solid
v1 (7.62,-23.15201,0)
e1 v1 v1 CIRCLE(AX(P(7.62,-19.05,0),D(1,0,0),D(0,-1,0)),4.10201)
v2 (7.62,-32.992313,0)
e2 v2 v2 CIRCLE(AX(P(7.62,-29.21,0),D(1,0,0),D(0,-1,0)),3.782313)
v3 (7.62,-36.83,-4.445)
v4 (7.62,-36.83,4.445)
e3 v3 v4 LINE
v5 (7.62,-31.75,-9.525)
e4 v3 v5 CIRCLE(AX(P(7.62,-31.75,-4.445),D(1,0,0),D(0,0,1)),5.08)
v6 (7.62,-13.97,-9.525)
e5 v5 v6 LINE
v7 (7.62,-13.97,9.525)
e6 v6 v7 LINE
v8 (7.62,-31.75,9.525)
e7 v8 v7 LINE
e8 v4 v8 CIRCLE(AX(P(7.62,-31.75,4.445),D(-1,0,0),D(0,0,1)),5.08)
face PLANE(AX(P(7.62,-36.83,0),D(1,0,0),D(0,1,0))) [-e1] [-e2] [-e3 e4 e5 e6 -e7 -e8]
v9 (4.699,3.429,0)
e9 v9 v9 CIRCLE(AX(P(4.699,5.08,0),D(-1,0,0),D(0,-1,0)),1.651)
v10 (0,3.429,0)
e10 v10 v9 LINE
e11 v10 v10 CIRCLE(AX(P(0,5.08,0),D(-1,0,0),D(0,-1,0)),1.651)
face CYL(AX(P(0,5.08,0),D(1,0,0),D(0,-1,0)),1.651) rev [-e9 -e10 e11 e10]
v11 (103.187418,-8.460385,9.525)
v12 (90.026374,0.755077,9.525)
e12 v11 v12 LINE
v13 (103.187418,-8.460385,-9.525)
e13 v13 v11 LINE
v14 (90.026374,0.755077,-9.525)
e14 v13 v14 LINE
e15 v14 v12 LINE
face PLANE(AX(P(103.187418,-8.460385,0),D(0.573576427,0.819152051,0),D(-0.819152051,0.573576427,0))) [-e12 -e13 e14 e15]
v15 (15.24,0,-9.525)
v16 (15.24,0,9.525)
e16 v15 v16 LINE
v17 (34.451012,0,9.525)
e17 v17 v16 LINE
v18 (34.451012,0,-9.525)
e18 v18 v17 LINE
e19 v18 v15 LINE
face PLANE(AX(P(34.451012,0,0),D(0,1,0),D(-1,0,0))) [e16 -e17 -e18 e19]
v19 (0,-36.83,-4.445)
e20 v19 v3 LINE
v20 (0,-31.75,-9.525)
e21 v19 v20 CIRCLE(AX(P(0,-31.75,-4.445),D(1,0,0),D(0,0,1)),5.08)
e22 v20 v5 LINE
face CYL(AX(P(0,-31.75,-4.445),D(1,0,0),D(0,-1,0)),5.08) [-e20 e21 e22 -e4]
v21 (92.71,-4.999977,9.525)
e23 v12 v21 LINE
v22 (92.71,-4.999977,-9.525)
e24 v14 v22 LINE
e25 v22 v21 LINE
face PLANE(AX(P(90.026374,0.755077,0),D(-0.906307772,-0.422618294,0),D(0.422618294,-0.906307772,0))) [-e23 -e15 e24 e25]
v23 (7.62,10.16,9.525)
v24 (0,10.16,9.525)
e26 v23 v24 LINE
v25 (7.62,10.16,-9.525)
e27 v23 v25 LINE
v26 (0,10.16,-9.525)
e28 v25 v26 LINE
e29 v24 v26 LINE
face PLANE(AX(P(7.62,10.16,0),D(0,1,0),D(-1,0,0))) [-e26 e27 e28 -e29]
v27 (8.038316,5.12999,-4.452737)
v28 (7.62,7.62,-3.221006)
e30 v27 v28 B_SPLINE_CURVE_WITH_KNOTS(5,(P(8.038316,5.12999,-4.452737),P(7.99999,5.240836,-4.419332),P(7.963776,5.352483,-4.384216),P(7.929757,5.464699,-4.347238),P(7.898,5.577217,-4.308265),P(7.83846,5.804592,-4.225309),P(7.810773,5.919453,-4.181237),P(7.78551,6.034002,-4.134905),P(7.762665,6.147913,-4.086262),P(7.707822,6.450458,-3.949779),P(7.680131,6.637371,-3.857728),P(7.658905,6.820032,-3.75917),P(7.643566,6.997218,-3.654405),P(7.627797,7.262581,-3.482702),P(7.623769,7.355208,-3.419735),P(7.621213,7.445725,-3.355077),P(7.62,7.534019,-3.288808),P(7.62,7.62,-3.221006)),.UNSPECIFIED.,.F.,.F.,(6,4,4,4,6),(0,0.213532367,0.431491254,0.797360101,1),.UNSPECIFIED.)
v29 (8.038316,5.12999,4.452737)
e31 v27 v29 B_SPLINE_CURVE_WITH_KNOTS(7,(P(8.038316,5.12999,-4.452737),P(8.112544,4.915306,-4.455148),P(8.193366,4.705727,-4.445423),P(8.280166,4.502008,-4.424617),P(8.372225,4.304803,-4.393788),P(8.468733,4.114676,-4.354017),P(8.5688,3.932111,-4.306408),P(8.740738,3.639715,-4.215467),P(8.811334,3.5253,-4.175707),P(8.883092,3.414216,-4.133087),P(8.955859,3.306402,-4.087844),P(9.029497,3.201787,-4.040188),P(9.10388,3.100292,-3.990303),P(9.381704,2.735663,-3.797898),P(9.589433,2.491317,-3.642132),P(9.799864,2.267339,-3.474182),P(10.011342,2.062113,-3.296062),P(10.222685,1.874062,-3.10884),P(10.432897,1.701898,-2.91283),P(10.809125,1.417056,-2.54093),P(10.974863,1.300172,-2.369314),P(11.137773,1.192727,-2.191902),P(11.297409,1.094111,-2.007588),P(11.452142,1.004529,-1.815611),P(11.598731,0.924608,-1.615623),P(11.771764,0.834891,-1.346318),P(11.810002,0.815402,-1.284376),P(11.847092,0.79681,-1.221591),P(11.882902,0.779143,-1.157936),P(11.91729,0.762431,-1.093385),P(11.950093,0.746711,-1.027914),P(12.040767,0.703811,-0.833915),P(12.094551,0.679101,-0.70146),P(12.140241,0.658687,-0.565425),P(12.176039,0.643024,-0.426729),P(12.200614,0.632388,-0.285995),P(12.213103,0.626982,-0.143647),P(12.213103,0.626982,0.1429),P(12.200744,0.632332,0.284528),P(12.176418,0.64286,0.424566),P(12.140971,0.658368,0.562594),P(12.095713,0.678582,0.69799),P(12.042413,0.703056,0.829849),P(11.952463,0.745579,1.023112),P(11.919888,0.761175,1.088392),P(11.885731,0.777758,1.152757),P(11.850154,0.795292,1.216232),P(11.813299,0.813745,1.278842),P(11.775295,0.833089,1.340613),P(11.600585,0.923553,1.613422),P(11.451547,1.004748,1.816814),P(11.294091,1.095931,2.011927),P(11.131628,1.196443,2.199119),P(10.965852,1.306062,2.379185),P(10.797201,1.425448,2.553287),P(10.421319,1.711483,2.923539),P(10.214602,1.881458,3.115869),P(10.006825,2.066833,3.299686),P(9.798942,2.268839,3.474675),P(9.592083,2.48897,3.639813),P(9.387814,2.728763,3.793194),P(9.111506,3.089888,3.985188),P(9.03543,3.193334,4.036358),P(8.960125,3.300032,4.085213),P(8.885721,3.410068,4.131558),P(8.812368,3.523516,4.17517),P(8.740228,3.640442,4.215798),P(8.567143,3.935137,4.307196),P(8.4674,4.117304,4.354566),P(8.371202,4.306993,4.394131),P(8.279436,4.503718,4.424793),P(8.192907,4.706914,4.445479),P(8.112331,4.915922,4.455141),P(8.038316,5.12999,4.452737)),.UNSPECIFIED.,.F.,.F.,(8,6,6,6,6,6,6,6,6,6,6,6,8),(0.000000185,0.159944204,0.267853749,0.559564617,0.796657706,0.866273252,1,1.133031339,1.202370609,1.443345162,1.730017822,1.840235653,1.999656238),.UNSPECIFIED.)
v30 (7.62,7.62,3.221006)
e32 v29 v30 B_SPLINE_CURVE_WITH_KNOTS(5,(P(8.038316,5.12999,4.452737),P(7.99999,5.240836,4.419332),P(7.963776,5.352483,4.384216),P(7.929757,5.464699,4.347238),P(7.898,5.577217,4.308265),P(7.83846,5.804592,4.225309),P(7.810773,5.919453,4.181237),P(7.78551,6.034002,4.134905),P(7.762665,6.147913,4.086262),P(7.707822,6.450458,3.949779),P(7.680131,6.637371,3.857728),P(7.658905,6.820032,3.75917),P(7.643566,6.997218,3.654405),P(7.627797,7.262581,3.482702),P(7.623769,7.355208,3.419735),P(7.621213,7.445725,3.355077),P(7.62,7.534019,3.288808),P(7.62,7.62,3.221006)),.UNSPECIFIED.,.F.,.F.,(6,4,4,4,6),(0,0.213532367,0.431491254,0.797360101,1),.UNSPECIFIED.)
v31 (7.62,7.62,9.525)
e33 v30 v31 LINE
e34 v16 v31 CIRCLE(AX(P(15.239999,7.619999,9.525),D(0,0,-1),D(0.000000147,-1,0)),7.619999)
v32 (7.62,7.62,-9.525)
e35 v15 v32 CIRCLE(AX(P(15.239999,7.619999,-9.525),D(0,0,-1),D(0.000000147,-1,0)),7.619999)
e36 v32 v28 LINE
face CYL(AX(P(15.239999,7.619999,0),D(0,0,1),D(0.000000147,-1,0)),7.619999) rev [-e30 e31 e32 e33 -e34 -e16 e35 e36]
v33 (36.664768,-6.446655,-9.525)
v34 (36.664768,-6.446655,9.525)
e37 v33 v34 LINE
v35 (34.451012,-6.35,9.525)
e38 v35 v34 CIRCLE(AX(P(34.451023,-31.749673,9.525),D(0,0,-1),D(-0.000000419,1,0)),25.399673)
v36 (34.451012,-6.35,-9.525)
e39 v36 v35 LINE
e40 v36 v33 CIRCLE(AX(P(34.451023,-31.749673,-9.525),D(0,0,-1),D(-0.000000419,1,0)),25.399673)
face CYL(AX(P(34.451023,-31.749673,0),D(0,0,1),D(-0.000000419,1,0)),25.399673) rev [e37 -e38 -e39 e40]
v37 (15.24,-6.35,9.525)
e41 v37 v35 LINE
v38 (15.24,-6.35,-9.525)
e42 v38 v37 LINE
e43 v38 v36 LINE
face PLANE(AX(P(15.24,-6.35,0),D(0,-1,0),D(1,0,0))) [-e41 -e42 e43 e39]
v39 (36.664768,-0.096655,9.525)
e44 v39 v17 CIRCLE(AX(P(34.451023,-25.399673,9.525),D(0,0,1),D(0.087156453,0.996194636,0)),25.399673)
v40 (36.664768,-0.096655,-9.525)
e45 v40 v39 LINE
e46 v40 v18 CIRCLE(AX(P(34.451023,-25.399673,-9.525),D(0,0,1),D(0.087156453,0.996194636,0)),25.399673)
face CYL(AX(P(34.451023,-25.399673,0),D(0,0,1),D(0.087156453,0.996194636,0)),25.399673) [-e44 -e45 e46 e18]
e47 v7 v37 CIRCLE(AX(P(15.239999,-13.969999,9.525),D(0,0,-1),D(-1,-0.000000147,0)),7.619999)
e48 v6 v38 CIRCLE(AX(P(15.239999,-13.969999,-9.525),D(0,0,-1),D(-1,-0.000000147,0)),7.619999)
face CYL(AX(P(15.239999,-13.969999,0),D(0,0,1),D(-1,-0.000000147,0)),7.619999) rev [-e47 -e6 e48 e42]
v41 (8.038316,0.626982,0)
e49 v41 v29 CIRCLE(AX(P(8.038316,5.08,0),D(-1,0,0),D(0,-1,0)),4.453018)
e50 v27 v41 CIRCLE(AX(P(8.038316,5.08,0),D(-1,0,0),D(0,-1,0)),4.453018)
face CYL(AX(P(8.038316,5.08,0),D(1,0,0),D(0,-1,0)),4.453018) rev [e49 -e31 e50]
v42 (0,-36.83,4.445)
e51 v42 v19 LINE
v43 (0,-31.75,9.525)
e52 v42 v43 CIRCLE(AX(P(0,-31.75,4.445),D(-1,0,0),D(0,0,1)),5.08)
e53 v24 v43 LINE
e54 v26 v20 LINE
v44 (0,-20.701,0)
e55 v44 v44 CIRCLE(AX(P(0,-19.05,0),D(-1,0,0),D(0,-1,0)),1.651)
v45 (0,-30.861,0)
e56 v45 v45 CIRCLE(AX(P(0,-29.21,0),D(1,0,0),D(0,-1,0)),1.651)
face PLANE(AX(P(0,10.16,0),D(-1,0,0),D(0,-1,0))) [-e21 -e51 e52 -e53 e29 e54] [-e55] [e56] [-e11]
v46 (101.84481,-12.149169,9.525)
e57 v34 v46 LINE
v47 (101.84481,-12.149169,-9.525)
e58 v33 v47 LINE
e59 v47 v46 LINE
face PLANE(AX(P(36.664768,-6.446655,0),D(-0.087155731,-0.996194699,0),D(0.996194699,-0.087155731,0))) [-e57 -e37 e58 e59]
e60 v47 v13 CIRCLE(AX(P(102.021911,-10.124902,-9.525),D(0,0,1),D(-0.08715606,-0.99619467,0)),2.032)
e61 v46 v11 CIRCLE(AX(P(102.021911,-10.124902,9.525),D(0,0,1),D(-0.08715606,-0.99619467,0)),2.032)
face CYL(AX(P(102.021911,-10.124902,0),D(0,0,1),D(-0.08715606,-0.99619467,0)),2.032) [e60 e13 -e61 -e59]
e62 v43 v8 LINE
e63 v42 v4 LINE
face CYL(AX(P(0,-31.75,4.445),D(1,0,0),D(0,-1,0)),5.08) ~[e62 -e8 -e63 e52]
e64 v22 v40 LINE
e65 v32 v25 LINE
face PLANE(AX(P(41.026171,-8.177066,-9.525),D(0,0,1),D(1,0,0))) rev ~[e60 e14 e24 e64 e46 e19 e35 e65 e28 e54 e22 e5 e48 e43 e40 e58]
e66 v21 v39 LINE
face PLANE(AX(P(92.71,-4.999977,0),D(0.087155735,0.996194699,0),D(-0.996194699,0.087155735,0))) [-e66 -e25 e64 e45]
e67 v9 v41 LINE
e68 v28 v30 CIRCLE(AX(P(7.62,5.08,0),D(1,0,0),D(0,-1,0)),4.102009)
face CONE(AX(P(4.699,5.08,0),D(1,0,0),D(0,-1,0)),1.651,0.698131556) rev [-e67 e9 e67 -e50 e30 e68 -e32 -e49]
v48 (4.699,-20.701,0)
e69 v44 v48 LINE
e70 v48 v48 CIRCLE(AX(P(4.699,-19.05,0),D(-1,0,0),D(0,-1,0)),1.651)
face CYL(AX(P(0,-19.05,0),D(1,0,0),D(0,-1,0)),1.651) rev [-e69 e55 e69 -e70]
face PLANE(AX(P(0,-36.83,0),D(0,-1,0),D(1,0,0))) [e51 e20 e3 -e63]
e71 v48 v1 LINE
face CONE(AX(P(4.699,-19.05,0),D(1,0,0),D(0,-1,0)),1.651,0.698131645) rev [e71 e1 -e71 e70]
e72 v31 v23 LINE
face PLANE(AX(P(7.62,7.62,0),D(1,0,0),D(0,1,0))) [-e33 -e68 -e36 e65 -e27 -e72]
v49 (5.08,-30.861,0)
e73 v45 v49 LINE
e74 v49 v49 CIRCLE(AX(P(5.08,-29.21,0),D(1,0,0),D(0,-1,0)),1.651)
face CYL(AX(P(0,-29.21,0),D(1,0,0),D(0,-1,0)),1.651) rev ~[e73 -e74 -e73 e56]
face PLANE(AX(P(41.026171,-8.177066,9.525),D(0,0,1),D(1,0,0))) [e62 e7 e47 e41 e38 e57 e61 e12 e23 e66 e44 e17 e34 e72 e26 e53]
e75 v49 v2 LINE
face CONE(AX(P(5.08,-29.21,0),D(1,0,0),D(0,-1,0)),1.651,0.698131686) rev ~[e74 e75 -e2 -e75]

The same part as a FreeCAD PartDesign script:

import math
import FreeCAD as App
import Part
import Sketcher

V = App.Vector
Q = App.Units.Quantity


def edges_at(feature, points):
    """Names of the edges that pass closest to the given points."""
    edges = feature.Shape.Edges
    near = lambda p: min(range(len(edges)), key=lambda i: edges[i].distToShape(Part.Vertex(*p))[0])
    return sorted({f"Edge{near(p) + 1}" for p in points})

doc = App.newDocument("Part")
body = doc.addObject("PartDesign::Body", "Body")

sketch1 = body.newObject("Sketcher::SketchObject", "Sketch")
sketch1.AttachmentSupport = (doc.getObject("XY_Plane"), [""])
sketch1.MapMode = "FlatFace"
sketch1.addGeometry([
    Part.LineSegment(V(0, -36.83, 0), V(7.62, -36.83, 0)),
    Part.LineSegment(V(7.62, -36.83, 0), V(7.62, -13.97, 0)),
    Part.ArcOfCircle(Part.Circle(V(15.239999, -13.969999, 0), V(0, 0, 1), 7.619999), math.radians(89.999992), math.radians(180.000008)),
    Part.LineSegment(V(15.24, -6.35, 0), V(34.451012, -6.35, 0)),
    Part.ArcOfCircle(Part.Circle(V(34.451023, -31.749673, 0), V(0, 0, 1), 25.399673), math.radians(84.999959), math.radians(90.000024)),
    Part.LineSegment(V(36.664768, -6.446655, 0), V(101.84481, -12.149169, 0)),
    Part.ArcOfCircle(Part.Circle(V(102.021911, -10.124902, 0), V(0, 0, 1), 2.032), math.radians(-95.000018), math.radians(55.000007)),
    Part.LineSegment(V(103.187418, -8.460385, 0), V(90.026374, 0.755077, 0)),
    Part.LineSegment(V(90.026374, 0.755077, 0), V(92.71, -4.999977, 0)),
    Part.LineSegment(V(92.71, -4.999977, 0), V(36.664768, -0.096655, 0)),
    Part.ArcOfCircle(Part.Circle(V(34.451023, -25.399673, 0), V(0, 0, 1), 25.399673), math.radians(84.999959), math.radians(90.000024)),
    Part.LineSegment(V(34.451012, 0, 0), V(15.24, 0, 0)),
    Part.ArcOfCircle(Part.Circle(V(15.239999, 7.619999, 0), V(0, 0, 1), 7.619999), math.radians(179.999992), math.radians(270.000008)),
    Part.LineSegment(V(7.62, 7.62, 0), V(7.62, 10.16, 0)),
    Part.LineSegment(V(7.62, 10.16, 0), V(0, 10.16, 0)),
    Part.LineSegment(V(0, 10.16, 0), V(0, -36.83, 0)),
], False)
sketch1.addConstraint([
    Sketcher.Constraint("Coincident", 0, 2, 1, 1),
    Sketcher.Constraint("Coincident", 1, 2, 2, 2),
    Sketcher.Constraint("Coincident", 2, 1, 3, 1),
    Sketcher.Constraint("Coincident", 3, 2, 4, 2),
    Sketcher.Constraint("Coincident", 4, 1, 5, 1),
    Sketcher.Constraint("Coincident", 5, 2, 6, 1),
    Sketcher.Constraint("Coincident", 6, 2, 7, 1),
    Sketcher.Constraint("Coincident", 7, 2, 8, 1),
    Sketcher.Constraint("Coincident", 8, 2, 9, 1),
    Sketcher.Constraint("Coincident", 9, 2, 10, 1),
    Sketcher.Constraint("Coincident", 10, 2, 11, 1),
    Sketcher.Constraint("Coincident", 11, 2, 12, 2),
    Sketcher.Constraint("Coincident", 12, 1, 13, 1),
    Sketcher.Constraint("Coincident", 13, 2, 14, 1),
    Sketcher.Constraint("Coincident", 14, 2, 15, 1),
    Sketcher.Constraint("Coincident", 15, 2, 0, 1),
    Sketcher.Constraint("Horizontal", 0),
    Sketcher.Constraint("Vertical", 1),
    Sketcher.Constraint("Horizontal", 3),
    Sketcher.Constraint("Horizontal", 11),
    Sketcher.Constraint("Vertical", 13),
    Sketcher.Constraint("Horizontal", 14),
    Sketcher.Constraint("Vertical", 15),
    Sketcher.Constraint("PointOnObject", 10, 2, -1),
    Sketcher.Constraint("PointOnObject", 14, 2, -2),
    Sketcher.Constraint("Radius", 2, Q("0.3 in")),
    Sketcher.Constraint("Radius", 12, Q("0.3 in")),
    Sketcher.Constraint("Radius", 6, Q("0.08 in")),
    Sketcher.Constraint("DistanceX", 0, 1, 0, 2, Q("0.3 in")),
    Sketcher.Constraint("DistanceX", 14, 2, 14, 1, Q("0.3 in")),
    Sketcher.Constraint("DistanceY", 1, 1, 1, 2, Q("0.9 in")),
    Sketcher.Constraint("DistanceY", 13, 1, 13, 2, Q("0.1 in")),
    Sketcher.Constraint("DistanceY", 15, 2, 15, 1, Q("1.85 in")),
    Sketcher.Constraint("DistanceX", -1, 1, 2, 1, Q("0.6 in")),
    Sketcher.Constraint("DistanceX", -1, 1, 11, 2, Q("0.6 in")),
    Sketcher.Constraint("DistanceY", -1, 1, 12, 1, Q("0.3 in")),
    Sketcher.Constraint("DistanceY", 0, 2, 2, 3, Q("0.9 in")),
    Sketcher.Constraint("Distance", 8, Q("0.25 in")),
    Sketcher.Constraint("DistanceX", -1, 1, 8, 2, Q("3.65 in")),
    Sketcher.Constraint("DistanceY", 4, 3, 10, 3, Q("0.25 in")),
    Sketcher.Constraint("DistanceY", 4, 1, 9, 2, Q("0.25 in")),
    Sketcher.Constraint("Radius", 4, 25.399673),
    Sketcher.Constraint("DistanceX", 3, 1, 3, 2, 19.211012),
    Sketcher.Constraint("DistanceX", 11, 2, 11, 1, 19.211012),
    Sketcher.Constraint("DistanceY", 6, 3, -1, 1, 10.124902),
    Sketcher.Constraint("DistanceX", 5, 2, 6, 3, 0.177101),
    Sketcher.Constraint("DistanceX", 3, 2, 5, 2, 67.393798),
    Sketcher.Constraint("Distance", 5, 65.429019),
    Sketcher.Constraint("DistanceX", -1, 1, 6, 2, 103.187418),
    Sketcher.Constraint("DistanceX", -1, 1, 9, 2, 36.664768),
    Sketcher.Constraint("DistanceX", 4, 3, 6, 3, 67.570888),
    Sketcher.Constraint("DistanceY", 6, 2, 7, 2, 9.215462),
    Sketcher.Constraint("Distance", 7, 16.066668),
])
pad1 = body.newObject("PartDesign::Pad", "Pad")
pad1.Profile = sketch1
pad1.Length = Q("0.75 in")
pad1.Midplane = True

sketch2 = body.newObject("Sketcher::SketchObject", "Sketch001")
sketch2.AttachmentSupport = (doc.getObject("XY_Plane"), [""])
sketch2.MapMode = "FlatFace"
sketch2.addGeometry([
    Part.LineSegment(V(0, -19.1, 0), V(0, -20.7, 0)),
    Part.LineSegment(V(0, -20.7, 0), V(4.7, -20.7, 0)),
    Part.LineSegment(V(4.7, -20.7, 0), V(9.7, -24.9, 0)),
    Part.LineSegment(V(9.7, -24.9, 0), V(11.6, -24.9, 0)),
    Part.LineSegment(V(11.6, -24.9, 0), V(11.6, -19.1, 0)),
    Part.LineSegment(V(11.6, -19.1, 0), V(0, -19.1, 0)),
], False)
sketch2.addGeometry(Part.LineSegment(V(11.6, -19.1, 0), V(0, -19.1, 0)), True)
sketch2.addConstraint([
    Sketcher.Constraint("Coincident", 0, 2, 1, 1),
    Sketcher.Constraint("Coincident", 1, 2, 2, 1),
    Sketcher.Constraint("Coincident", 2, 2, 3, 1),
    Sketcher.Constraint("Coincident", 3, 2, 4, 1),
    Sketcher.Constraint("Coincident", 4, 2, 5, 1),
    Sketcher.Constraint("Coincident", 5, 2, 0, 1),
    Sketcher.Constraint("Vertical", 0),
    Sketcher.Constraint("Horizontal", 1),
    Sketcher.Constraint("Horizontal", 3),
    Sketcher.Constraint("Vertical", 4),
    Sketcher.Constraint("Horizontal", 5),
    Sketcher.Constraint("Horizontal", 6),
    Sketcher.Constraint("Coincident", 6, 1, 4, 2),
    Sketcher.Constraint("PointOnObject", 0, 2, -2),
    Sketcher.Constraint("PointOnObject", 6, 2, -2),
    Sketcher.Constraint("Angle", 2, Q("-39.999997 deg")),
    Sketcher.Constraint("DistanceX", 1, 1, 1, 2, Q("0.185 in")),
    Sketcher.Constraint("DistanceY", 0, 2, 0, 1, Q("0.065 in")),
    Sketcher.Constraint("DistanceX", -1, 1, 2, 2, Q("0.38 in")),
    Sketcher.Constraint("DistanceY", 4, 2, -1, 1, Q("0.75 in")),
    Sketcher.Constraint("DistanceX", 3, 1, 3, 2, 1.903037),
])
groove = body.newObject("PartDesign::Groove", "Groove")
groove.Profile = sketch2
groove.ReferenceAxis = (sketch2, ["Axis0"])
groove.Angle = 360

sketch3 = body.newObject("Sketcher::SketchObject", "Sketch002")
sketch3.AttachmentSupport = (doc.getObject("XY_Plane"), [""])
sketch3.MapMode = "FlatFace"
sketch3.addGeometry([
    Part.LineSegment(V(7.6, -29.2, 0), V(0, -29.2, 0)),
    Part.LineSegment(V(0, -29.2, 0), V(0, -30.9, 0)),
    Part.LineSegment(V(0, -30.9, 0), V(5.1, -30.9, 0)),
    Part.LineSegment(V(5.1, -30.9, 0), V(7.6, -33, 0)),
    Part.LineSegment(V(7.6, -33, 0), V(7.6, -29.2, 0)),
], False)
sketch3.addGeometry(Part.LineSegment(V(0, -29.2, 0), V(7.6, -29.2, 0)), True)
sketch3.addConstraint([
    Sketcher.Constraint("Coincident", 0, 2, 1, 1),
    Sketcher.Constraint("Coincident", 1, 2, 2, 1),
    Sketcher.Constraint("Coincident", 2, 2, 3, 1),
    Sketcher.Constraint("Coincident", 3, 2, 4, 1),
    Sketcher.Constraint("Coincident", 4, 2, 0, 1),
    Sketcher.Constraint("Horizontal", 0),
    Sketcher.Constraint("Vertical", 1),
    Sketcher.Constraint("Horizontal", 2),
    Sketcher.Constraint("Vertical", 4),
    Sketcher.Constraint("Horizontal", 5),
    Sketcher.Constraint("Coincident", 5, 1, 0, 2),
    Sketcher.Constraint("PointOnObject", 0, 2, -2),
    Sketcher.Constraint("Vertical", 3, 2, 5, 2),
    Sketcher.Constraint("DistanceX", 0, 2, 0, 1, Q("0.3 in")),
    Sketcher.Constraint("DistanceX", 2, 1, 2, 2, Q("0.2 in")),
    Sketcher.Constraint("Angle", 3, Q("-39.999999 deg")),
    Sketcher.Constraint("DistanceY", 1, 2, 1, 1, Q("0.065 in")),
    Sketcher.Constraint("DistanceY", 0, 2, -1, 1, Q("1.15 in")),
])
groove2 = body.newObject("PartDesign::Groove", "Groove001")
groove2.Profile = sketch3
groove2.ReferenceAxis = (sketch3, ["Axis0"])
groove2.Angle = 360
doc.recompute()

fillet = body.newObject("PartDesign::Fillet", "Fillet")
fillet.Base = (groove2, edges_at(groove2, [(3.81, -36.83, 9.525), (3.81, -36.83, -9.525)]))
fillet.Radius = Q("0.2 in")

sketch4 = body.newObject("Sketcher::SketchObject", "Sketch003")
sketch4.AttachmentSupport = (doc.getObject("XY_Plane"), [""])
sketch4.MapMode = "FlatFace"
sketch4.addGeometry([
    Part.LineSegment(V(0, 5.1, 0), V(0, 3.4, 0)),
    Part.LineSegment(V(0, 3.4, 0), V(4.7, 3.4, 0)),
    Part.LineSegment(V(4.7, 3.4, 0), V(8, 0.6, 0)),
    Part.LineSegment(V(8, 0.6, 0), V(15.2, 0.6, 0)),
    Part.LineSegment(V(15.2, 0.6, 0), V(15.2, 5.1, 0)),
    Part.LineSegment(V(15.2, 5.1, 0), V(0, 5.1, 0)),
], False)
sketch4.addGeometry(Part.LineSegment(V(15.2, 5.1, 0), V(0, 5.1, 0)), True)
sketch4.addConstraint([
    Sketcher.Constraint("Coincident", 0, 2, 1, 1),
    Sketcher.Constraint("Coincident", 1, 2, 2, 1),
    Sketcher.Constraint("Coincident", 2, 2, 3, 1),
    Sketcher.Constraint("Coincident", 3, 2, 4, 1),
    Sketcher.Constraint("Coincident", 4, 2, 5, 1),
    Sketcher.Constraint("Coincident", 5, 2, 0, 1),
    Sketcher.Constraint("Vertical", 0),
    Sketcher.Constraint("Horizontal", 1),
    Sketcher.Constraint("Horizontal", 3),
    Sketcher.Constraint("Vertical", 4),
    Sketcher.Constraint("Horizontal", 5),
    Sketcher.Constraint("Horizontal", 6),
    Sketcher.Constraint("Coincident", 6, 1, 4, 2),
    Sketcher.Constraint("PointOnObject", 0, 2, -2),
    Sketcher.Constraint("PointOnObject", 6, 2, -2),
    Sketcher.Constraint("DistanceX", 5, 2, 5, 1, Q("0.6 in")),
    Sketcher.Constraint("Angle", 2, Q("-39.999992 deg")),
    Sketcher.Constraint("DistanceY", -1, 1, 4, 2, Q("0.2 in")),
    Sketcher.Constraint("DistanceX", 1, 1, 1, 2, Q("0.185 in")),
    Sketcher.Constraint("DistanceY", 0, 2, 0, 1, Q("0.065 in")),
    Sketcher.Constraint("DistanceX", 3, 1, 3, 2, 7.201684),
])
groove3 = body.newObject("PartDesign::Groove", "Groove002")
groove3.Profile = sketch4
groove3.ReferenceAxis = (sketch4, ["Axis0"])
groove3.Angle = 360

doc.recompute()
